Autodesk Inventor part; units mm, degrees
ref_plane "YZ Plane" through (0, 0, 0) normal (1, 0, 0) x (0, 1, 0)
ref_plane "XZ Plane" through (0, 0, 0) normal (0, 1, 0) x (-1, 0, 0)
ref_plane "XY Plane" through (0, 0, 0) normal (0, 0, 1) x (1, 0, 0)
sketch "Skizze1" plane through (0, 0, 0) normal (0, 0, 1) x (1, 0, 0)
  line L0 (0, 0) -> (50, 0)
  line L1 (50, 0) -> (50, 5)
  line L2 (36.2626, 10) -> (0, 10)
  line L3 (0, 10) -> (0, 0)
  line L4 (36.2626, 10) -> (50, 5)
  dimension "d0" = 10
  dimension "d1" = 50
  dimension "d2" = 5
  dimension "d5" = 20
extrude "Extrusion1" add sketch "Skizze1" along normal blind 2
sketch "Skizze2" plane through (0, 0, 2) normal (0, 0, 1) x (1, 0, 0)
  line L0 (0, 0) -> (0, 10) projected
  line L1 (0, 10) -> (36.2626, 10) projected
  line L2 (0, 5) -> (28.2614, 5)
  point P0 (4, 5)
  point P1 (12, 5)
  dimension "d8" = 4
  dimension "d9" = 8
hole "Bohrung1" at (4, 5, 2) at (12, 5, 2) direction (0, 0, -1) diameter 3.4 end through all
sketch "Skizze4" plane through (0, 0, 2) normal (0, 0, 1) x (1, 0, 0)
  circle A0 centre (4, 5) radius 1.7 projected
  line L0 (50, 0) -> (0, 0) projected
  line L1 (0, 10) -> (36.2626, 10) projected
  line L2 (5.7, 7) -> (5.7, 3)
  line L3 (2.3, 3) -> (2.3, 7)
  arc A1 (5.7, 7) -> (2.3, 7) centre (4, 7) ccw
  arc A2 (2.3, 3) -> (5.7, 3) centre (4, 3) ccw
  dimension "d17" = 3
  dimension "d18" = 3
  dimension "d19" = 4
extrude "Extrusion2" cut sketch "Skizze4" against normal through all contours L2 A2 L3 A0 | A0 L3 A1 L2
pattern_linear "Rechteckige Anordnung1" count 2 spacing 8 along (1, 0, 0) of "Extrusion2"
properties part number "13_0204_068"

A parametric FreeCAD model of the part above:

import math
import FreeCAD as App
import Part
import Sketcher
from FreeCAD import Vector
Q = App.Units.Quantity


def add_polygon(sketch, points):
    """Adds a closed chain of lines whose ends are joined by coincident constraints."""
    first, n = sketch.GeometryCount, len(points)
    for a, b in zip(points, points[1:] + points[:1]):
        sketch.addGeometry(Part.LineSegment(App.Vector(*a, 0), App.Vector(*b, 0)), False)
    for i in range(n):
        sketch.addConstraint(Sketcher.Constraint("Coincident", first + i, 2, first + (i + 1) % n, 1))

doc = App.newDocument("Part")
body = doc.addObject("PartDesign::Body", "Body")

sketch1 = body.newObject("Sketcher::SketchObject", "Sketch")
sketch1.AttachmentSupport = (doc.getObject("XY_Plane"), [""])
sketch1.MapMode = "FlatFace"
add_polygon(sketch1, [(0, 10), (0, 0), (50, 0), (50, 5), (36.2626, 10)])
sketch1.addConstraint([
    Sketcher.Constraint("Vertical", 0),
    Sketcher.Constraint("Horizontal", 1),
    Sketcher.Constraint("Vertical", 2),
    Sketcher.Constraint("Horizontal", 4),
    Sketcher.Constraint("Coincident", 0, 2, -1, 1),
    Sketcher.Constraint("DistanceX", 1, 1, 1, 2, 50.0),
    Sketcher.Constraint("DistanceY", 0, 2, 0, 1, 10.0),
    Sketcher.Constraint("DistanceY", 2, 1, 2, 2, 5.0),
    Sketcher.Constraint("Angle", 3, Q("160 deg")),
])
pad1 = body.newObject("PartDesign::Pad", "Pad")
pad1.Profile = sketch1
pad1.Length = 2

sketch2 = body.newObject("Sketcher::SketchObject", "Sketch001")
sketch2.AttachmentSupport = (doc.getObject("XY_Plane"), [""])
sketch2.MapMode = "FlatFace"
sketch2.AttachmentOffset = App.Placement(Vector(0, 0, 2), App.Rotation())
sketch2.addGeometry([
    Part.Circle(Vector(4, 5, 0), Vector(0, 0, 1), 1.7),
    Part.Circle(Vector(12, 5, 0), Vector(0, 0, 1), 1.7),
], False)
sketch2.addConstraint([
    Sketcher.Constraint("Equal", 0, 1),
    Sketcher.Constraint("Horizontal", 0, 3, 1, 3),
    Sketcher.Constraint("Diameter", 0, 3.4),
    Sketcher.Constraint("DistanceX", -1, 1, 0, 3, 4.0),
    Sketcher.Constraint("DistanceY", -1, 1, 0, 3, 5.0),
    Sketcher.Constraint("DistanceX", -1, 1, 1, 3, 12.0),
])
doc.recompute()
hole = body.newObject("PartDesign::Hole", "Hole")
hole.Profile = sketch2
hole.ThreadType = "None"
hole.Diameter = 3.4
hole.DepthType = "ThroughAll"

sketch3 = body.newObject("Sketcher::SketchObject", "Sketch002")
sketch3.AttachmentSupport = (doc.getObject("XY_Plane"), [""])
sketch3.MapMode = "FlatFace"
sketch3.AttachmentOffset = App.Placement(Vector(0, 0, 2), App.Rotation())
sketch3.addGeometry([
    Part.LineSegment(Vector(5.7, 3, 0), Vector(5.7, 5, 0)),
    Part.ArcOfCircle(Part.Circle(Vector(4, 5, 0), Vector(0, 0, 1), 1.7), math.radians(180), math.radians(360)),
    Part.LineSegment(Vector(2.3, 5, 0), Vector(2.3, 3, 0)),
    Part.ArcOfCircle(Part.Circle(Vector(4, 3, 0), Vector(0, 0, 1), 1.7), math.radians(180), math.radians(360)),
    Part.ArcOfCircle(Part.Circle(Vector(4, 5, 0), Vector(0, 0, 1), 1.7), math.radians(0), math.radians(180)),
    Part.LineSegment(Vector(5.7, 5, 0), Vector(5.7, 7, 0)),
    Part.ArcOfCircle(Part.Circle(Vector(4, 7, 0), Vector(0, 0, 1), 1.7), math.radians(0), math.radians(180)),
    Part.LineSegment(Vector(2.3, 7, 0), Vector(2.3, 5, 0)),
], False)
sketch3.addConstraint([
    Sketcher.Constraint("Tangent", 0, 2, 1, 2),
    Sketcher.Constraint("Tangent", 1, 1, 2, 1),
    Sketcher.Constraint("Tangent", 2, 2, 3, 1),
    Sketcher.Constraint("Tangent", 3, 2, 0, 1),
    Sketcher.Constraint("Tangent", 4, 1, 5, 1),
    Sketcher.Constraint("Tangent", 5, 2, 6, 1),
    Sketcher.Constraint("Tangent", 6, 2, 7, 1),
    Sketcher.Constraint("Tangent", 7, 2, 4, 2),
    Sketcher.Constraint("Vertical", 0),
    Sketcher.Constraint("Vertical", 2),
    Sketcher.Constraint("Vertical", 5),
    Sketcher.Constraint("Vertical", 7),
    Sketcher.Constraint("Coincident", 4, 3, 1, 3),
    Sketcher.Constraint("Equal", 3, 4),
    Sketcher.Constraint("Equal", 2, 5),
    Sketcher.Constraint("DistanceX", -1, 1, 1, 3, 4.0),
    Sketcher.Constraint("DistanceY", -1, 1, 3, 3, 3.0),
    Sketcher.Constraint("DistanceY", 3, 3, 6, 3, 4.0),
    Sketcher.Constraint("Radius", 1, 1.7),
])
pocket1 = body.newObject("PartDesign::Pocket", "Pocket")
pocket1.Profile = sketch3
pocket1.Type = "ThroughAll"
doc.recompute()

linearpattern = body.newObject("PartDesign::LinearPattern", "LinearPattern")
linearpattern.Originals = [pocket1]
linearpattern.Direction = (doc.getObject("X_Axis"), [""])
linearpattern.Mode = "offset"
linearpattern.Offset = 8
linearpattern.Occurrences = 2
body.Tip = linearpattern

doc.recompute()
